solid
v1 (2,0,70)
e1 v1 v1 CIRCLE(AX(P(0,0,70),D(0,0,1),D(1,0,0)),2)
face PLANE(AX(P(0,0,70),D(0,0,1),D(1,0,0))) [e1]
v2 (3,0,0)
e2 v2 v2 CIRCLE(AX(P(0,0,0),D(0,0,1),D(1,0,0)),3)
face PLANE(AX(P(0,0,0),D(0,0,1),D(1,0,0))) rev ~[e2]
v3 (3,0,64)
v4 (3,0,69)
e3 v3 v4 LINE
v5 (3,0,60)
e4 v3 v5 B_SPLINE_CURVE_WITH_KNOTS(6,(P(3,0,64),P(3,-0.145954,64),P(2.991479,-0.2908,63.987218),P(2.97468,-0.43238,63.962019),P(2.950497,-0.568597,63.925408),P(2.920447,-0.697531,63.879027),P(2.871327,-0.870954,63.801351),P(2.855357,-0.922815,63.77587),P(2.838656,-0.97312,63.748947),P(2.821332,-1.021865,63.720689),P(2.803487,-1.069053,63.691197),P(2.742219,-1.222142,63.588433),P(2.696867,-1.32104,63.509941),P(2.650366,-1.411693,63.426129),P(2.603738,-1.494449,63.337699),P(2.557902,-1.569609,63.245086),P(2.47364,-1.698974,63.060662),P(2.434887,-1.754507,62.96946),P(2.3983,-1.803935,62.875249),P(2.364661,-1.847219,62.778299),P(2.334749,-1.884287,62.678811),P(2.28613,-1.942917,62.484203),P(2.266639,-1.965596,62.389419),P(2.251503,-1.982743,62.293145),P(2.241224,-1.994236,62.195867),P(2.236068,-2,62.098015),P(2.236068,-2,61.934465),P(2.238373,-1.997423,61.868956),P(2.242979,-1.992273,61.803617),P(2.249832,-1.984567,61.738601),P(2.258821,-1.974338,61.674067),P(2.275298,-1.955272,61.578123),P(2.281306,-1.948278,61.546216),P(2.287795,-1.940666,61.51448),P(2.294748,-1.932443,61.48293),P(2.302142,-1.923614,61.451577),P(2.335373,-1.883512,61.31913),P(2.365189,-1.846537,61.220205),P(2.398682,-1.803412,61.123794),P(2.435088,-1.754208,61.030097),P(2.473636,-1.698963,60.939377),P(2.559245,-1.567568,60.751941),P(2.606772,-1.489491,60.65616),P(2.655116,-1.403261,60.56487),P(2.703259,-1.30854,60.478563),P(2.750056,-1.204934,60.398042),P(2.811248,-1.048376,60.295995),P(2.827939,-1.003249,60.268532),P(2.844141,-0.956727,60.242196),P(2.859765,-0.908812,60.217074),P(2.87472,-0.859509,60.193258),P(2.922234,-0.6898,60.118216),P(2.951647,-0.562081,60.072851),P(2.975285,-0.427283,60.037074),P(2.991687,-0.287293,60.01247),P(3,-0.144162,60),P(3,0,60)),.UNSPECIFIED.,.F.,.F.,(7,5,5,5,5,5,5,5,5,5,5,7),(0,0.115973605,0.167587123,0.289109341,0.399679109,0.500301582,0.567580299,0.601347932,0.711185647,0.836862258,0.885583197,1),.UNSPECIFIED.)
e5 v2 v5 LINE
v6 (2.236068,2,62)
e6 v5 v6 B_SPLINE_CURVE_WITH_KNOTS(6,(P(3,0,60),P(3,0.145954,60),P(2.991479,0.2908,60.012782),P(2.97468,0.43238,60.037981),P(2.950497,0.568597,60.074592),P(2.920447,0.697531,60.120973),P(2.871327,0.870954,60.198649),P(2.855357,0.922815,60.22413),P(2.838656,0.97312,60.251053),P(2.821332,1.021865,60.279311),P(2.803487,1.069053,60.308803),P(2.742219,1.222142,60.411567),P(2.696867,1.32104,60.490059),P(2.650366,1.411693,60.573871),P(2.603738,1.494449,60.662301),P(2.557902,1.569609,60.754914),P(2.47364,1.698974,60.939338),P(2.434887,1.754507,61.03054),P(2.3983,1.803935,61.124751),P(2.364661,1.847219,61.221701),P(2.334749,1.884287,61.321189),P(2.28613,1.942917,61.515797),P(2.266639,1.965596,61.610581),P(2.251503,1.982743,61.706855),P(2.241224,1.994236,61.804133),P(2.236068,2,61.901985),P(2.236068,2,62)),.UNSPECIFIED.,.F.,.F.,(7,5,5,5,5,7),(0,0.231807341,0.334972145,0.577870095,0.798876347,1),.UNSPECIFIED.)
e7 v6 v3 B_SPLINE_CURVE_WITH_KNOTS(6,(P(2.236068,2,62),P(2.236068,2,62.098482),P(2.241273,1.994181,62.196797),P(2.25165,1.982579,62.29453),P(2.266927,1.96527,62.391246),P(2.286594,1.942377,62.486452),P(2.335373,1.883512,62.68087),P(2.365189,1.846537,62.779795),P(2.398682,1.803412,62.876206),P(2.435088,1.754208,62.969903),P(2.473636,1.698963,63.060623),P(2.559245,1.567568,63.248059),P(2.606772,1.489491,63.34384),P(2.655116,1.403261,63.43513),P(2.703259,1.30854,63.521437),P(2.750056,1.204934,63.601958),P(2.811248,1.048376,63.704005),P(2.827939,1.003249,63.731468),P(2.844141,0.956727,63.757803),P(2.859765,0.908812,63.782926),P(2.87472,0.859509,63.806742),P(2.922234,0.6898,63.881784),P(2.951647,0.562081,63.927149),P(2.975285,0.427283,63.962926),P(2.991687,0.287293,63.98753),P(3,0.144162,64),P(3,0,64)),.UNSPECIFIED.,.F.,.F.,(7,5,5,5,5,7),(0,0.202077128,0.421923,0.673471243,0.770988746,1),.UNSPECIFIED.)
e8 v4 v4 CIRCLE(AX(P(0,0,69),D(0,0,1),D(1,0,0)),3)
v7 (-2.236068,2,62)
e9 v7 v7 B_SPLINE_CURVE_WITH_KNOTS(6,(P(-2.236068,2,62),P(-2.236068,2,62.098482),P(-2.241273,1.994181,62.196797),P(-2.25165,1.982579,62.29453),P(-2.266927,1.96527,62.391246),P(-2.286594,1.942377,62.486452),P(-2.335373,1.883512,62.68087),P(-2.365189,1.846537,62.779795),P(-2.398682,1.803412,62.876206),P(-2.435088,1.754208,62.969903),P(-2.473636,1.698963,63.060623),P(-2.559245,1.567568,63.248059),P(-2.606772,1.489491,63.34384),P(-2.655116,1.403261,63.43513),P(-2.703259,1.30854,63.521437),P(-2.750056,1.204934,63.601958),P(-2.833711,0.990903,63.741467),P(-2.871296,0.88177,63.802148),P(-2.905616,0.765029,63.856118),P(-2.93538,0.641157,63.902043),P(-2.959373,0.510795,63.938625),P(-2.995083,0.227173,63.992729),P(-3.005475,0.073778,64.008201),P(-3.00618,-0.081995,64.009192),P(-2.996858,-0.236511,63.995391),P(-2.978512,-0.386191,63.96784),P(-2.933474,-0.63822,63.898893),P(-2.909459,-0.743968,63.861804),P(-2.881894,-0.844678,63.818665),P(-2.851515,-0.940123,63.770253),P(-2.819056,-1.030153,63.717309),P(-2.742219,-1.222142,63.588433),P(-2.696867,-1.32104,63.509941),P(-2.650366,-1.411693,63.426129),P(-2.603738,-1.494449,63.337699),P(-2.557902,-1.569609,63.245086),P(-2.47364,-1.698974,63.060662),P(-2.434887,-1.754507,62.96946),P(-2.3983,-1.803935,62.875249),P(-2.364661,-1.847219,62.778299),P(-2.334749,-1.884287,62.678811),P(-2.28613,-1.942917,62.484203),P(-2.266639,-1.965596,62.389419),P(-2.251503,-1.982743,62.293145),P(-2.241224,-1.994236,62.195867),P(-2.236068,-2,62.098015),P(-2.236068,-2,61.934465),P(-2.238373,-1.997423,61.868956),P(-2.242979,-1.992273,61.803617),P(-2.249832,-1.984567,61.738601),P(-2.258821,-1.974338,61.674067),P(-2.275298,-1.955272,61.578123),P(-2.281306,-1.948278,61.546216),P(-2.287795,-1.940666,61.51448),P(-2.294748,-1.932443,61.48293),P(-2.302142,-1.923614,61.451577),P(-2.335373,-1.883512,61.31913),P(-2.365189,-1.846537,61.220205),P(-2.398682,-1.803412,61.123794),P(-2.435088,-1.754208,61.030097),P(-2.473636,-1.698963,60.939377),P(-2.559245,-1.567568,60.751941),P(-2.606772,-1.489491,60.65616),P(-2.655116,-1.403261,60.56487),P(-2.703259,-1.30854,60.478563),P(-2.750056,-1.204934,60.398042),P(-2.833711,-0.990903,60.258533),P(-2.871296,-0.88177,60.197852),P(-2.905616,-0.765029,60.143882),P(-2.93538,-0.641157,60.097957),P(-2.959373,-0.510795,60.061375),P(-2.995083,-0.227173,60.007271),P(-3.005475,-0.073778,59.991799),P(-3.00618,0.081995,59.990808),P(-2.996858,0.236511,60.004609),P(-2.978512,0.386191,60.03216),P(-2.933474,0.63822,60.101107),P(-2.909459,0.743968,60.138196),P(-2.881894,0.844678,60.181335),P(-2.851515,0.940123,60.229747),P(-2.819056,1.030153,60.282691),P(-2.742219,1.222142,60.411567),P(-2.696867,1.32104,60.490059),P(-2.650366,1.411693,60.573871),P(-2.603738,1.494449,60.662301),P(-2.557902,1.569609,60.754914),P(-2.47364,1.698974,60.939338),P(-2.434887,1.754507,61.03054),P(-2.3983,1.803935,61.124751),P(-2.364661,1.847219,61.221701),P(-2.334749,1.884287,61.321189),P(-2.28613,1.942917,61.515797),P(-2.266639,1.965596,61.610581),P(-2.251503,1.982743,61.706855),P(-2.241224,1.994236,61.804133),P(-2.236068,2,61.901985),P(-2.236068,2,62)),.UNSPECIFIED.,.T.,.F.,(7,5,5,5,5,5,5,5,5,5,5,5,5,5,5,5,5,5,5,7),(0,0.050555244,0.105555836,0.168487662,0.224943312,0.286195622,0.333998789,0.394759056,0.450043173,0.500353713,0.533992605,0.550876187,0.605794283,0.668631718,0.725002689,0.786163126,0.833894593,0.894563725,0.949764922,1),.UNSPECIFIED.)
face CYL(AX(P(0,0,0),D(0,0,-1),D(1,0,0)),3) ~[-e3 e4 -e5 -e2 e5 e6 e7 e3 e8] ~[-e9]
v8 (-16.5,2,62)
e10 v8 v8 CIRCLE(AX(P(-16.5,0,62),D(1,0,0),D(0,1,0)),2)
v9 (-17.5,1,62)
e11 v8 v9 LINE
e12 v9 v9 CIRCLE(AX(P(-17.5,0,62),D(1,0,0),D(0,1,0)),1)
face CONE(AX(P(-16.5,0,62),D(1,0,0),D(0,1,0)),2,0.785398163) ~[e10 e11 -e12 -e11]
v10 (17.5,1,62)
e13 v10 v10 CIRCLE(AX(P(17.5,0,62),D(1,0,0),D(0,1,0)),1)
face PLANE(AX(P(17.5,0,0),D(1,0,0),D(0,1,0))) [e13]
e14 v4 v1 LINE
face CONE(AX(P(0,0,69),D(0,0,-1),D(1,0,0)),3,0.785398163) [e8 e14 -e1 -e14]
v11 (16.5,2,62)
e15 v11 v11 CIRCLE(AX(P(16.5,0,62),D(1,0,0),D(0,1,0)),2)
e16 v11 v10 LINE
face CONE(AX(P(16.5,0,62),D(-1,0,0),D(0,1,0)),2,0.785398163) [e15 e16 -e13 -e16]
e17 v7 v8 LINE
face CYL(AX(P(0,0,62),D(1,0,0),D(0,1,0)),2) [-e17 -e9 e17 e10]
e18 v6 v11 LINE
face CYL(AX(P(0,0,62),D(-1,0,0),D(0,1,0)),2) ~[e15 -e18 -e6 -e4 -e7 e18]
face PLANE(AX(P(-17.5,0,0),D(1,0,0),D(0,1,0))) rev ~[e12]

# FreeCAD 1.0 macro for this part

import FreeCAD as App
import Part
import Sketcher
from FreeCAD import Vector


def edges_at(feature, points):
    """Names of the edges that pass closest to the given points."""
    edges = feature.Shape.Edges
    near = lambda p: min(range(len(edges)), key=lambda i: edges[i].distToShape(Part.Vertex(*p))[0])
    return sorted({f"Edge{near(p) + 1}" for p in points})

doc = App.newDocument("Part")
body = doc.addObject("PartDesign::Body", "Body")

# Sketch on XY plane
sketch1 = doc.addObject("Sketcher::SketchObject", "Sketch")
body.addObject(sketch1)
sketch1.AttachmentSupport = (doc.XY_Plane, [""])
sketch1.MapMode = "FlatFace"
sketch1.addGeometry(Part.Circle(Vector(0, 0, 0), Vector(0, 0, 1), 3), False)
sketch1.addConstraint([
    Sketcher.Constraint("Coincident", 0, 3, -1, 1),
    Sketcher.Constraint("Diameter", 0, 6.0),
])
pad1 = doc.addObject("PartDesign::Pad", "Pad")
body.addObject(pad1)
pad1.Profile = sketch1
pad1.Length = 70
doc.recompute()

chamfer = doc.addObject("PartDesign::Chamfer", "Chamfer")
body.addObject(chamfer)
chamfer.Base = (pad1, edges_at(pad1, [(-3, 0, 70)]))
chamfer.Size = 1

# Sketch on YZ plane
sketch2 = doc.addObject("Sketcher::SketchObject", "Sketch001")
body.addObject(sketch2)
sketch2.AttachmentSupport = (doc.YZ_Plane, [""])
sketch2.MapMode = "FlatFace"
sketch2.addGeometry(Part.Circle(Vector(0, 62, 0), Vector(0, 0, 1), 2), False)
sketch2.addConstraint([
    Sketcher.Constraint("PointOnObject", 0, 3, -2),
    Sketcher.Constraint("Diameter", 0, 4.0),
    Sketcher.Constraint("DistanceY", -1, 1, 0, 3, 62.0),
])
pad2 = doc.addObject("PartDesign::Pad", "Pad001")
body.addObject(pad2)
pad2.Profile = sketch2
pad2.Length = 35
pad2.Midplane = True
doc.recompute()

chamfer2 = doc.addObject("PartDesign::Chamfer", "Chamfer001")
body.addObject(chamfer2)
chamfer2.Base = (pad2, edges_at(pad2, [(17.5, -2, 62), (-17.5, -2, 62)]))
chamfer2.Size = 1

doc.recompute()
